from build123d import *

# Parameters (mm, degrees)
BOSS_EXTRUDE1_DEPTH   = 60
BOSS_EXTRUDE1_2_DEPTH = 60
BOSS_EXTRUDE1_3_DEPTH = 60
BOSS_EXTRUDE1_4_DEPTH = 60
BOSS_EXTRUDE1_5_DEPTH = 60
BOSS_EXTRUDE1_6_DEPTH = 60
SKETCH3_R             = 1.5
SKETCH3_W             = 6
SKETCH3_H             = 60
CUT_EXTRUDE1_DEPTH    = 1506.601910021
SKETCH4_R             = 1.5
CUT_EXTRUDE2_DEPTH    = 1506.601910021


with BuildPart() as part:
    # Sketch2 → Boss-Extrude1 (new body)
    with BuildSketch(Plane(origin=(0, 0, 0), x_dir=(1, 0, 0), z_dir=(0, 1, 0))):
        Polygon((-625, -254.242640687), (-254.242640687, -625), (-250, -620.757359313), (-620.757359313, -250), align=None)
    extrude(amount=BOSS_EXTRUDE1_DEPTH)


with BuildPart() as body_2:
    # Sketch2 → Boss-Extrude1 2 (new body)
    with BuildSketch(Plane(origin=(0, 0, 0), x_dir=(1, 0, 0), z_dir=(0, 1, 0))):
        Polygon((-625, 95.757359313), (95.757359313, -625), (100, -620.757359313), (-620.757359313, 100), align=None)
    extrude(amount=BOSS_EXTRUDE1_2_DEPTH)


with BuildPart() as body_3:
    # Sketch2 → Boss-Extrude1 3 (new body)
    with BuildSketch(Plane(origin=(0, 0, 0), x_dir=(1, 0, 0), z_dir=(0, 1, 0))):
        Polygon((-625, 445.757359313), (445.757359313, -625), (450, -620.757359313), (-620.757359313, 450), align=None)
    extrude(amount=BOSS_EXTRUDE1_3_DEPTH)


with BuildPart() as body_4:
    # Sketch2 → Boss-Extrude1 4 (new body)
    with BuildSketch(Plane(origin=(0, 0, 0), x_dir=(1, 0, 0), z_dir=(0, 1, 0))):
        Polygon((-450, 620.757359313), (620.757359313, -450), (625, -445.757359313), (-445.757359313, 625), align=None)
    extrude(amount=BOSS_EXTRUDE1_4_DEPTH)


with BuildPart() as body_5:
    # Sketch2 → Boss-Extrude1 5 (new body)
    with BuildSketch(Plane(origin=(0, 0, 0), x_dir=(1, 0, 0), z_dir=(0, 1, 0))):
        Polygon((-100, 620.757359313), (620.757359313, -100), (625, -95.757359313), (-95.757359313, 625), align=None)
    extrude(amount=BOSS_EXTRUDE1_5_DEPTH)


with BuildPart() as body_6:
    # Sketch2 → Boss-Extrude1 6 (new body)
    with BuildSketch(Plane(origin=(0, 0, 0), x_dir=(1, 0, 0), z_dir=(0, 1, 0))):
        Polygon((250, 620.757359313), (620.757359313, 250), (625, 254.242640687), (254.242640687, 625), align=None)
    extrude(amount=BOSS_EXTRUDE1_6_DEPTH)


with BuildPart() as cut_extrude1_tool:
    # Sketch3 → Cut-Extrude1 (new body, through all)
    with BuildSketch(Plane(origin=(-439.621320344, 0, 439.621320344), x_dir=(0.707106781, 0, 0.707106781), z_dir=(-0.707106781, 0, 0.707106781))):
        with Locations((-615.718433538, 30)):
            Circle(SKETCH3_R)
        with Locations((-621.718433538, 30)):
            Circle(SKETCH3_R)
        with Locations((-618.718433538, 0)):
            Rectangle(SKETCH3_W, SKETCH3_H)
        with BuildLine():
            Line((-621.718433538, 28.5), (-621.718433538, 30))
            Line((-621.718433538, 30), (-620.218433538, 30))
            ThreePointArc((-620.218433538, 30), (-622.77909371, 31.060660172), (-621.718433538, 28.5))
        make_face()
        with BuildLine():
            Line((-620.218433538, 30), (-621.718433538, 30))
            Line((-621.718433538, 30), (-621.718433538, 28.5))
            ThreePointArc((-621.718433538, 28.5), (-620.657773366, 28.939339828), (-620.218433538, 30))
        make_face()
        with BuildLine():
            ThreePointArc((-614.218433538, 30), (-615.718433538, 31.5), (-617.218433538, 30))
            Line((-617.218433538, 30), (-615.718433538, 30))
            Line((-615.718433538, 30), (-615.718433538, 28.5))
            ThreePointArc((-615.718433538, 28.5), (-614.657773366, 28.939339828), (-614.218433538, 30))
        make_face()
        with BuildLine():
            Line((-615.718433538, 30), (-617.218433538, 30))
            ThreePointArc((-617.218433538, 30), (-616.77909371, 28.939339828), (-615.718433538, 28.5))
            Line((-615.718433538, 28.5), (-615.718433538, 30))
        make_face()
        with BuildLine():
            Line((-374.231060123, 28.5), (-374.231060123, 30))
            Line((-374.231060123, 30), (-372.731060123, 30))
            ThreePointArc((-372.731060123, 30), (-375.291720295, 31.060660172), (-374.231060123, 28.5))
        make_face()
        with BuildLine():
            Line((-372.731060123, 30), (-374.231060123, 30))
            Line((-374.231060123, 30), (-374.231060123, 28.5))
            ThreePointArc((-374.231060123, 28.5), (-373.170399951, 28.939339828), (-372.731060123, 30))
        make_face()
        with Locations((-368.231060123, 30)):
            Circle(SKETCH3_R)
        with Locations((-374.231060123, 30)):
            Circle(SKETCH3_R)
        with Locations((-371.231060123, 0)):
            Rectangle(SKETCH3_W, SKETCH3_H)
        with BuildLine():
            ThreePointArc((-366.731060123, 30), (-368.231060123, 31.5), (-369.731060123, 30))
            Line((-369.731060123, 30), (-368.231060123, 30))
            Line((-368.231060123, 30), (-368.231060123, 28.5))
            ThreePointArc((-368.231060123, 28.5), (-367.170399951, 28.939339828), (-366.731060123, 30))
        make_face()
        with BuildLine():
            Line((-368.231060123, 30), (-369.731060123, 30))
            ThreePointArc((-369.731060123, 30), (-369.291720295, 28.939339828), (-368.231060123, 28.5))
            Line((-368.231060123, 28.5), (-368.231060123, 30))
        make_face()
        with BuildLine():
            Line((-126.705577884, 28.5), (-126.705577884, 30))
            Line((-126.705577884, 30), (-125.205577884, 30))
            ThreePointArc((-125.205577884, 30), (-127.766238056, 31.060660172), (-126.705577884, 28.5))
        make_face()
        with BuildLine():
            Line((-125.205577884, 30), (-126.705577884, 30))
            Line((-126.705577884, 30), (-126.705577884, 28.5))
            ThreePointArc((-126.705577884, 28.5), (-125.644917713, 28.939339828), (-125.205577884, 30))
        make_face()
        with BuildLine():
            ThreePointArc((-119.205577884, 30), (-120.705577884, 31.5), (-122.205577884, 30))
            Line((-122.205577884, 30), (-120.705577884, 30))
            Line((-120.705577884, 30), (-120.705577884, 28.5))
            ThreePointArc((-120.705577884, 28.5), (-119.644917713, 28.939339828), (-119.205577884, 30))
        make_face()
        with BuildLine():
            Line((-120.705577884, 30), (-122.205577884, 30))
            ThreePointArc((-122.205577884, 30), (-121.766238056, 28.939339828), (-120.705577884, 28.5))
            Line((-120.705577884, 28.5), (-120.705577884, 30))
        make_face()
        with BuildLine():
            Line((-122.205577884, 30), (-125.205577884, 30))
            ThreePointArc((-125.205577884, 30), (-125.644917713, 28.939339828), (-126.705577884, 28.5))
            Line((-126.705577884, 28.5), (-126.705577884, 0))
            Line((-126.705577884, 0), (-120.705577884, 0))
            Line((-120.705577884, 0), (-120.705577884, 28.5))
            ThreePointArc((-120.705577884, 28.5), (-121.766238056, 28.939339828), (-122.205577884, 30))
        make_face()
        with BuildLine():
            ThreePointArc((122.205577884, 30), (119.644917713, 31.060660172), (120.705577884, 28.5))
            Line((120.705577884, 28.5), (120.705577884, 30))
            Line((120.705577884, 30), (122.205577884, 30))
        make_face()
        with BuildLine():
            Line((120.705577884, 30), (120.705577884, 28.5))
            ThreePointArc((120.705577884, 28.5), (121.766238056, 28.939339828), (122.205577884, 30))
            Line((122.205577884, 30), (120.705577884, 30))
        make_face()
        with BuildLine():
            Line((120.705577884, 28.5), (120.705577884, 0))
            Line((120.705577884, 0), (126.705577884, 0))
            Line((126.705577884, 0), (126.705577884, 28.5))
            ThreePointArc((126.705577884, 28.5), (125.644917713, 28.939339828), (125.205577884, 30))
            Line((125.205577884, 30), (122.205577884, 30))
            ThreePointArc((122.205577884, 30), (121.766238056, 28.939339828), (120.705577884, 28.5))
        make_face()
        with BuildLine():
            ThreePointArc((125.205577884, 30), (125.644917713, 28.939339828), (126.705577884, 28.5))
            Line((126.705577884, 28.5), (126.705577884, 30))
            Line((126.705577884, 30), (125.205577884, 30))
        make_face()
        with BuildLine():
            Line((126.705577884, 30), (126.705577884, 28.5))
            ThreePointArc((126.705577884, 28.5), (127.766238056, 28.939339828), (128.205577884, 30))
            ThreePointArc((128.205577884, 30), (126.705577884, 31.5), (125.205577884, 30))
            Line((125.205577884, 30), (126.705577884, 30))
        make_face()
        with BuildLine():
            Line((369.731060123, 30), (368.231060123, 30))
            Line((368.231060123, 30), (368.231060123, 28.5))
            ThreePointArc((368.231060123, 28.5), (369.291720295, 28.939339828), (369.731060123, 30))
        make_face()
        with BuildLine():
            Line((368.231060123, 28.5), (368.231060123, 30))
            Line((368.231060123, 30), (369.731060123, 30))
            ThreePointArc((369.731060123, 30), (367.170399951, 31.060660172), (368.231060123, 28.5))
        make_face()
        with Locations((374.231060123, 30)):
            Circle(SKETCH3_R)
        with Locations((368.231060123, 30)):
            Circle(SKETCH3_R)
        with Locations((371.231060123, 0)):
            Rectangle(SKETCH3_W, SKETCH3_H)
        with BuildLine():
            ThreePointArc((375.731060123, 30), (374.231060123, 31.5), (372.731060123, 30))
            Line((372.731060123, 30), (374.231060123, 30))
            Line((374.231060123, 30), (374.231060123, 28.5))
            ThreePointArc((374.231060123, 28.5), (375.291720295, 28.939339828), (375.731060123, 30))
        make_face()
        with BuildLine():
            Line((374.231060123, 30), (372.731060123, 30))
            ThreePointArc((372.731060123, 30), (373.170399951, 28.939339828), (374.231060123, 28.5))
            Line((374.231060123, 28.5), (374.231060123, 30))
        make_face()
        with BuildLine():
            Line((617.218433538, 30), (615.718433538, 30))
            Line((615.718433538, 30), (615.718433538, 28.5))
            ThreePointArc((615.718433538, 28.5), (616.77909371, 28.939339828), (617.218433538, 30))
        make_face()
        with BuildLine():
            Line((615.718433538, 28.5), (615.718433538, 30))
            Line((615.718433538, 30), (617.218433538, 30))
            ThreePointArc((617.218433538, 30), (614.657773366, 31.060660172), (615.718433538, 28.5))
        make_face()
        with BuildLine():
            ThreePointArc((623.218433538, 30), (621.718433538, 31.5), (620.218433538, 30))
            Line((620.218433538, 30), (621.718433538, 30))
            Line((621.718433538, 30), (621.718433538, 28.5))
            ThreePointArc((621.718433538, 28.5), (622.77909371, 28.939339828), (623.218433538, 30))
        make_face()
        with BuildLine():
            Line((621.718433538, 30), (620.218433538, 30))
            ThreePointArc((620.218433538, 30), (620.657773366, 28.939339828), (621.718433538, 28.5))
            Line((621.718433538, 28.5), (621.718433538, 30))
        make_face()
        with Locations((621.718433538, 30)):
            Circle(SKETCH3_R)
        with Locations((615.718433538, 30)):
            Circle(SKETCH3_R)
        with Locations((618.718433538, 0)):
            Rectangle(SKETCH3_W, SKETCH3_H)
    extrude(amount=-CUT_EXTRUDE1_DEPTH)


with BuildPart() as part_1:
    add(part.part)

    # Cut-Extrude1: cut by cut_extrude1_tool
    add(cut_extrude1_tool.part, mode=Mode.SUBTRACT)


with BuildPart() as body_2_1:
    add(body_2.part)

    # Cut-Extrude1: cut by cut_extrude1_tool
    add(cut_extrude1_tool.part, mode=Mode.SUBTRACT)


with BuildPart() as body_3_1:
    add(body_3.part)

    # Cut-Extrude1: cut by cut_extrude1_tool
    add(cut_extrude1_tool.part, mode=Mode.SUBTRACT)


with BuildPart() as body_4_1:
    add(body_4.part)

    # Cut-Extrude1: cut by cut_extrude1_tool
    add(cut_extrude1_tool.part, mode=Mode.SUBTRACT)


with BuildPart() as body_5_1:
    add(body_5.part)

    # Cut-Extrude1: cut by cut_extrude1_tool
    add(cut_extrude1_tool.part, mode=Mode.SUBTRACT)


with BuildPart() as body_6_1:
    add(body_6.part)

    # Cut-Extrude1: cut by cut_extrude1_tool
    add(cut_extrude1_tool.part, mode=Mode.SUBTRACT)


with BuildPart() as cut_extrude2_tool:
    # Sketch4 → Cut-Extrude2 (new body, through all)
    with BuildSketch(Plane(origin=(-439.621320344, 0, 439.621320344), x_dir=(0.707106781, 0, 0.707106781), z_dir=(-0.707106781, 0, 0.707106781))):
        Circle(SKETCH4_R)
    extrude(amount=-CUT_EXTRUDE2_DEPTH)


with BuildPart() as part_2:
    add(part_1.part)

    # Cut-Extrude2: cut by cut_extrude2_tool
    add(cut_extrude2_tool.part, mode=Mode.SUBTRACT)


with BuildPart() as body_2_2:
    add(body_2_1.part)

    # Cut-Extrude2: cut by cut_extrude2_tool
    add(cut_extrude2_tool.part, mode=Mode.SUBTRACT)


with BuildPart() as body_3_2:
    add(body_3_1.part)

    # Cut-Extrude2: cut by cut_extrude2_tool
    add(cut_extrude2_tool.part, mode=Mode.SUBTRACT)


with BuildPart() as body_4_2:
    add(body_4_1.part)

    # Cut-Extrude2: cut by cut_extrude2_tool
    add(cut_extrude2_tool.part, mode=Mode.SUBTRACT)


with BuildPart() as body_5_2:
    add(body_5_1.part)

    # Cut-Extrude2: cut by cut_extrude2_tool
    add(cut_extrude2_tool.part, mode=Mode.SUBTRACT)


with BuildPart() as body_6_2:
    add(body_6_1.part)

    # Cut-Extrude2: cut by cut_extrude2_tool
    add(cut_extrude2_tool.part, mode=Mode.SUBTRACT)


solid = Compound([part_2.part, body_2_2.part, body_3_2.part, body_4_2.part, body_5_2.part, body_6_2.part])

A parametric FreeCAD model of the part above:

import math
import FreeCAD as App
import Part
import Sketcher
from FreeCAD import Vector
Q = App.Units.Quantity

doc = App.newDocument("Part")
params = doc.addObject("Spreadsheet::Sheet", "Params")
for row, (alias, value) in enumerate([
    ("sketch1_length", "6 mm"),
    ("pad1_length", "60 mm"),
    ("sketch2_length", "6 mm"),
    ("pad2_length", "60 mm"),
    ("sketch3_length", "6 mm"),
    ("pad3_length", "60 mm"),
    ("sketch4_length", "6 mm"),
    ("pad4_length", "60 mm"),
    ("sketch5_length", "6 mm"),
    ("pad5_length", "60 mm"),
    ("sketch6_length", "6 mm"),
    ("pad6_length", "60 mm"),
    ("sketch7_radius", "1.5 mm"),
    ("sketch7_width", "6 mm"),
    ("sketch7_height", "58.5 mm"),
    ("sketch7_height2", "28.5 mm"),
    ("pad7_length", "1506.60191 mm"),
    ("sketch8_diameter", "3 mm"),
    ("pad8_length", "1506.60191 mm"),
], start=1):
    params.set(f"A{row}", alias)
    params.set(f"B{row}", "=" + value)
    params.setAlias(f"B{row}", alias)

body = doc.addObject("PartDesign::Body", "Body")

sketch1 = body.newObject("Sketcher::SketchObject", "Sketch")
sketch1.AttachmentSupport = (doc.getObject("XZ_Plane"), [""])
sketch1.MapMode = "FlatFace"
sketch1.addGeometry(Part.LineSegment(Vector(-625, 254, 0), Vector(-254, 625, 0)), False)
sketch1.addGeometry(Part.LineSegment(Vector(-254, 625, 0), Vector(-250, 621, 0)), False)
sketch1.addGeometry(Part.LineSegment(Vector(-250, 621, 0), Vector(-621, 250, 0)), False)
sketch1.addGeometry(Part.LineSegment(Vector(-621, 250, 0), Vector(-625, 254, 0)), False)
sketch1.addConstraint(Sketcher.Constraint("Coincident", 0, 2, 1, 1))
sketch1.addConstraint(Sketcher.Constraint("Coincident", 1, 2, 2, 1))
sketch1.addConstraint(Sketcher.Constraint("Coincident", 2, 2, 3, 1))
sketch1.addConstraint(Sketcher.Constraint("Coincident", 3, 2, 0, 1))
sketch1.addConstraint(Sketcher.Constraint("Perpendicular", 0, 1))
sketch1.addConstraint(Sketcher.Constraint("Perpendicular", 1, 2))
sketch1.addConstraint(Sketcher.Constraint("Perpendicular", 2, 3))
sketch1.addConstraint(Sketcher.Constraint("Angle", 0, Q("45 deg")))
sketch1.addConstraint(Sketcher.Constraint("Distance", 1, Q("6 mm")))
sketch1.addConstraint(Sketcher.Constraint("DistanceY", -1, 1, 0, 2, Q("625 mm")))
sketch1.addConstraint(Sketcher.Constraint("DistanceX", 1, 2, -1, 1, Q("250 mm")))
sketch1.addConstraint(Sketcher.Constraint("DistanceY", -1, 1, 2, 2, Q("250 mm")))
sketch1.setExpression("Constraints[8]", "Params.sketch1_length")
pad1 = body.newObject("PartDesign::Pad", "Pad")
pad1.Profile = sketch1
pad1.setExpression("Length", "Params.pad1_length")
pad1.Reversed = True
body2 = doc.addObject("PartDesign::Body", "Body001")

sketch2 = body2.newObject("Sketcher::SketchObject", "Sketch001")
sketch2.AttachmentSupport = (doc.getObject("XZ_Plane001"), [""])
sketch2.MapMode = "FlatFace"
sketch2.addGeometry(Part.LineSegment(Vector(-625, -96, 0), Vector(96, 625, 0)), False)
sketch2.addGeometry(Part.LineSegment(Vector(96, 625, 0), Vector(100, 621, 0)), False)
sketch2.addGeometry(Part.LineSegment(Vector(100, 621, 0), Vector(-621, -100, 0)), False)
sketch2.addGeometry(Part.LineSegment(Vector(-621, -100, 0), Vector(-625, -96, 0)), False)
sketch2.addConstraint(Sketcher.Constraint("Coincident", 0, 2, 1, 1))
sketch2.addConstraint(Sketcher.Constraint("Coincident", 1, 2, 2, 1))
sketch2.addConstraint(Sketcher.Constraint("Coincident", 2, 2, 3, 1))
sketch2.addConstraint(Sketcher.Constraint("Coincident", 3, 2, 0, 1))
sketch2.addConstraint(Sketcher.Constraint("Perpendicular", 0, 1))
sketch2.addConstraint(Sketcher.Constraint("Perpendicular", 1, 2))
sketch2.addConstraint(Sketcher.Constraint("Perpendicular", 2, 3))
sketch2.addConstraint(Sketcher.Constraint("Angle", 0, Q("45 deg")))
sketch2.addConstraint(Sketcher.Constraint("Distance", 1, Q("6 mm")))
sketch2.addConstraint(Sketcher.Constraint("DistanceY", -1, 1, 0, 2, Q("625 mm")))
sketch2.addConstraint(Sketcher.Constraint("DistanceX", -1, 1, 1, 2, Q("100 mm")))
sketch2.addConstraint(Sketcher.Constraint("DistanceY", 2, 2, -1, 1, Q("100 mm")))
sketch2.setExpression("Constraints[8]", "Params.sketch2_length")
pad2 = body2.newObject("PartDesign::Pad", "Pad001")
pad2.Profile = sketch2
pad2.setExpression("Length", "Params.pad2_length")
pad2.Reversed = True
body3 = doc.addObject("PartDesign::Body", "Body002")

sketch3 = body3.newObject("Sketcher::SketchObject", "Sketch002")
sketch3.AttachmentSupport = (doc.getObject("XZ_Plane002"), [""])
sketch3.MapMode = "FlatFace"
sketch3.addGeometry(Part.LineSegment(Vector(-625, -446, 0), Vector(446, 625, 0)), False)
sketch3.addGeometry(Part.LineSegment(Vector(446, 625, 0), Vector(450, 621, 0)), False)
sketch3.addGeometry(Part.LineSegment(Vector(450, 621, 0), Vector(-621, -450, 0)), False)
sketch3.addGeometry(Part.LineSegment(Vector(-621, -450, 0), Vector(-625, -446, 0)), False)
sketch3.addConstraint(Sketcher.Constraint("Coincident", 0, 2, 1, 1))
sketch3.addConstraint(Sketcher.Constraint("Coincident", 1, 2, 2, 1))
sketch3.addConstraint(Sketcher.Constraint("Coincident", 2, 2, 3, 1))
sketch3.addConstraint(Sketcher.Constraint("Coincident", 3, 2, 0, 1))
sketch3.addConstraint(Sketcher.Constraint("Perpendicular", 0, 1))
sketch3.addConstraint(Sketcher.Constraint("Perpendicular", 1, 2))
sketch3.addConstraint(Sketcher.Constraint("Perpendicular", 2, 3))
sketch3.addConstraint(Sketcher.Constraint("Angle", 0, Q("45 deg")))
sketch3.addConstraint(Sketcher.Constraint("Distance", 1, Q("6 mm")))
sketch3.addConstraint(Sketcher.Constraint("DistanceY", -1, 1, 0, 2, Q("625 mm")))
sketch3.addConstraint(Sketcher.Constraint("DistanceX", -1, 1, 1, 2, Q("450 mm")))
sketch3.addConstraint(Sketcher.Constraint("DistanceY", 2, 2, -1, 1, Q("450 mm")))
sketch3.setExpression("Constraints[8]", "Params.sketch3_length")
pad3 = body3.newObject("PartDesign::Pad", "Pad002")
pad3.Profile = sketch3
pad3.setExpression("Length", "Params.pad3_length")
pad3.Reversed = True
body4 = doc.addObject("PartDesign::Body", "Body003")

sketch4 = body4.newObject("Sketcher::SketchObject", "Sketch003")
sketch4.AttachmentSupport = (doc.getObject("XZ_Plane003"), [""])
sketch4.MapMode = "FlatFace"
sketch4.addGeometry(Part.LineSegment(Vector(-450, -621, 0), Vector(621, 450, 0)), False)
sketch4.addGeometry(Part.LineSegment(Vector(621, 450, 0), Vector(625, 446, 0)), False)
sketch4.addGeometry(Part.LineSegment(Vector(625, 446, 0), Vector(-446, -625, 0)), False)
sketch4.addGeometry(Part.LineSegment(Vector(-446, -625, 0), Vector(-450, -621, 0)), False)
sketch4.addConstraint(Sketcher.Constraint("Coincident", 0, 2, 1, 1))
sketch4.addConstraint(Sketcher.Constraint("Coincident", 1, 2, 2, 1))
sketch4.addConstraint(Sketcher.Constraint("Coincident", 2, 2, 3, 1))
sketch4.addConstraint(Sketcher.Constraint("Coincident", 3, 2, 0, 1))
sketch4.addConstraint(Sketcher.Constraint("Perpendicular", 0, 1))
sketch4.addConstraint(Sketcher.Constraint("Perpendicular", 1, 2))
sketch4.addConstraint(Sketcher.Constraint("Perpendicular", 2, 3))
sketch4.addConstraint(Sketcher.Constraint("Angle", 0, Q("45 deg")))
sketch4.addConstraint(Sketcher.Constraint("Distance", 1, Q("6 mm")))
sketch4.addConstraint(Sketcher.Constraint("DistanceY", -1, 1, 0, 2, Q("450 mm")))
sketch4.addConstraint(Sketcher.Constraint("DistanceX", -1, 1, 1, 2, Q("625 mm")))
sketch4.addConstraint(Sketcher.Constraint("DistanceY", 2, 2, -1, 1, Q("625 mm")))
sketch4.setExpression("Constraints[8]", "Params.sketch4_length")
pad4 = body4.newObject("PartDesign::Pad", "Pad003")
pad4.Profile = sketch4
pad4.setExpression("Length", "Params.pad4_length")
pad4.Reversed = True
body5 = doc.addObject("PartDesign::Body", "Body004")

sketch5 = body5.newObject("Sketcher::SketchObject", "Sketch004")
sketch5.AttachmentSupport = (doc.getObject("XZ_Plane004"), [""])
sketch5.MapMode = "FlatFace"
sketch5.addGeometry(Part.LineSegment(Vector(-100, -621, 0), Vector(621, 100, 0)), False)
sketch5.addGeometry(Part.LineSegment(Vector(621, 100, 0), Vector(625, 96, 0)), False)
sketch5.addGeometry(Part.LineSegment(Vector(625, 96, 0), Vector(-96, -625, 0)), False)
sketch5.addGeometry(Part.LineSegment(Vector(-96, -625, 0), Vector(-100, -621, 0)), False)
sketch5.addConstraint(Sketcher.Constraint("Coincident", 0, 2, 1, 1))
sketch5.addConstraint(Sketcher.Constraint("Coincident", 1, 2, 2, 1))
sketch5.addConstraint(Sketcher.Constraint("Coincident", 2, 2, 3, 1))
sketch5.addConstraint(Sketcher.Constraint("Coincident", 3, 2, 0, 1))
sketch5.addConstraint(Sketcher.Constraint("Perpendicular", 0, 1))
sketch5.addConstraint(Sketcher.Constraint("Perpendicular", 1, 2))
sketch5.addConstraint(Sketcher.Constraint("Perpendicular", 2, 3))
sketch5.addConstraint(Sketcher.Constraint("Angle", 0, Q("45 deg")))
sketch5.addConstraint(Sketcher.Constraint("Distance", 1, Q("6 mm")))
sketch5.addConstraint(Sketcher.Constraint("DistanceY", -1, 1, 0, 2, Q("100 mm")))
sketch5.addConstraint(Sketcher.Constraint("DistanceX", -1, 1, 1, 2, Q("625 mm")))
sketch5.addConstraint(Sketcher.Constraint("DistanceY", 2, 2, -1, 1, Q("625 mm")))
sketch5.setExpression("Constraints[8]", "Params.sketch5_length")
pad5 = body5.newObject("PartDesign::Pad", "Pad004")
pad5.Profile = sketch5
pad5.setExpression("Length", "Params.pad5_length")
pad5.Reversed = True
body6 = doc.addObject("PartDesign::Body", "Body005")

sketch6 = body6.newObject("Sketcher::SketchObject", "Sketch005")
sketch6.AttachmentSupport = (doc.getObject("XZ_Plane005"), [""])
sketch6.MapMode = "FlatFace"
sketch6.addGeometry(Part.LineSegment(Vector(250, -621, 0), Vector(621, -250, 0)), False)
sketch6.addGeometry(Part.LineSegment(Vector(621, -250, 0), Vector(625, -254, 0)), False)
sketch6.addGeometry(Part.LineSegment(Vector(625, -254, 0), Vector(254, -625, 0)), False)
sketch6.addGeometry(Part.LineSegment(Vector(254, -625, 0), Vector(250, -621, 0)), False)
sketch6.addConstraint(Sketcher.Constraint("Coincident", 0, 2, 1, 1))
sketch6.addConstraint(Sketcher.Constraint("Coincident", 1, 2, 2, 1))
sketch6.addConstraint(Sketcher.Constraint("Coincident", 2, 2, 3, 1))
sketch6.addConstraint(Sketcher.Constraint("Coincident", 3, 2, 0, 1))
sketch6.addConstraint(Sketcher.Constraint("Perpendicular", 0, 1))
sketch6.addConstraint(Sketcher.Constraint("Perpendicular", 1, 2))
sketch6.addConstraint(Sketcher.Constraint("Perpendicular", 2, 3))
sketch6.addConstraint(Sketcher.Constraint("Angle", 0, Q("45 deg")))
sketch6.addConstraint(Sketcher.Constraint("Distance", 1, Q("6 mm")))
sketch6.addConstraint(Sketcher.Constraint("DistanceY", 0, 2, -1, 1, Q("250 mm")))
sketch6.addConstraint(Sketcher.Constraint("DistanceX", -1, 1, 1, 2, Q("625 mm")))
sketch6.addConstraint(Sketcher.Constraint("DistanceY", 2, 2, -1, 1, Q("625 mm")))
sketch6.setExpression("Constraints[8]", "Params.sketch6_length")
pad6 = body6.newObject("PartDesign::Pad", "Pad005")
pad6.Profile = sketch6
pad6.setExpression("Length", "Params.pad6_length")
pad6.Reversed = True
body7 = doc.addObject("PartDesign::Body", "Body006")
body7.AllowCompound = True

sketch7 = body7.newObject("Sketcher::SketchObject", "Sketch006")
sketch7.Placement = App.Placement(Vector(-439.62132, 0, 439.62132), App.Rotation(Vector(0.707106781, 0, 0.707106781), Vector(0, 0.999999999, 0), Vector(-0.707106781, 0, 0.707106781), "ZXY"))
sketch7.addGeometry(Part.LineSegment(Vector(-621.7, 28.5, 0), Vector(-621.7, -30, 0)), False)
sketch7.addGeometry(Part.LineSegment(Vector(-621.7, -30, 0), Vector(-615.7, -30, 0)), False)
sketch7.addGeometry(Part.LineSegment(Vector(-615.7, -30, 0), Vector(-615.7, 28.5, 0)), False)
sketch7.addGeometry(Part.ArcOfCircle(Part.Circle(Vector(-615.7, 30, 0), Vector(0, 0, 1), 1.5), math.radians(-90), math.radians(180)), False)
sketch7.addGeometry(Part.LineSegment(Vector(-617.2, 30, 0), Vector(-620.2, 30, 0)), False)
sketch7.addGeometry(Part.ArcOfCircle(Part.Circle(Vector(-621.7, 30, 0), Vector(0, 0, 1), 1.5), math.radians(0), math.radians(270)), False)
sketch7.addGeometry(Part.LineSegment(Vector(-369.7, 30, 0), Vector(-372.7, 30, 0)), False)
sketch7.addGeometry(Part.ArcOfCircle(Part.Circle(Vector(-374.2, 30, 0), Vector(0, 0, 1), 1.5), math.radians(0), math.radians(270)), False)
sketch7.addGeometry(Part.LineSegment(Vector(-374.2, 28.5, 0), Vector(-374.2, -30, 0)), False)
sketch7.addGeometry(Part.LineSegment(Vector(-374.2, -30, 0), Vector(-368.2, -30, 0)), False)
sketch7.addGeometry(Part.LineSegment(Vector(-368.2, -30, 0), Vector(-368.2, 28.5, 0)), False)
sketch7.addGeometry(Part.ArcOfCircle(Part.Circle(Vector(-368.2, 30, 0), Vector(0, 0, 1), 1.5), math.radians(-90), math.radians(180)), False)
sketch7.addGeometry(Part.ArcOfCircle(Part.Circle(Vector(-126.7, 30, 0), Vector(0, 0, 1), 1.5), math.radians(0), math.radians(270)), False)
sketch7.addGeometry(Part.LineSegment(Vector(-126.7, 28.5, 0), Vector(-126.7, 0, 0)), False)
sketch7.addGeometry(Part.LineSegment(Vector(-126.7, 0, 0), Vector(-120.7, 0, 0)), False)
sketch7.addGeometry(Part.LineSegment(Vector(-120.7, 0, 0), Vector(-120.7, 28.5, 0)), False)
sketch7.addGeometry(Part.ArcOfCircle(Part.Circle(Vector(-120.7, 30, 0), Vector(0, 0, 1), 1.5), math.radians(-90), math.radians(0)), False)
sketch7.addGeometry(Part.ArcOfCircle(Part.Circle(Vector(-120.7, 30, 0), Vector(0, 0, 1), 1.5), math.radians(0), math.radians(180)), False)
sketch7.addGeometry(Part.LineSegment(Vector(-122.2, 30, 0), Vector(-125.2, 30, 0)), False)
sketch7.addGeometry(Part.LineSegment(Vector(126.7, 0, 0), Vector(126.7, 28.5, 0)), False)
sketch7.addGeometry(Part.ArcOfCircle(Part.Circle(Vector(126.7, 30, 0), Vector(0, 0, 1), 1.5), math.radians(-90), math.radians(0)), False)
sketch7.addGeometry(Part.ArcOfCircle(Part.Circle(Vector(126.7, 30, 0), Vector(0, 0, 1), 1.5), math.radians(0), math.radians(180)), False)
sketch7.addGeometry(Part.LineSegment(Vector(125.2, 30, 0), Vector(122.2, 30, 0)), False)
sketch7.addGeometry(Part.ArcOfCircle(Part.Circle(Vector(120.7, 30, 0), Vector(0, 0, 1), 1.5), math.radians(0), math.radians(270)), False)
sketch7.addGeometry(Part.LineSegment(Vector(120.7, 28.5, 0), Vector(120.7, 0, 0)), False)
sketch7.addGeometry(Part.LineSegment(Vector(120.7, 0, 0), Vector(126.7, 0, 0)), False)
sketch7.addGeometry(Part.ArcOfCircle(Part.Circle(Vector(368.2, 30, 0), Vector(0, 0, 1), 1.5), math.radians(0), math.radians(270)), False)
sketch7.addGeometry(Part.LineSegment(Vector(368.2, 28.5, 0), Vector(368.2, -30, 0)), False)
sketch7.addGeometry(Part.LineSegment(Vector(368.2, -30, 0), Vector(374.2, -30, 0)), False)
sketch7.addGeometry(Part.LineSegment(Vector(374.2, -30, 0), Vector(374.2, 28.5, 0)), False)
sketch7.addGeometry(Part.ArcOfCircle(Part.Circle(Vector(374.2, 30, 0), Vector(0, 0, 1), 1.5), math.radians(-90), math.radians(180)), False)
sketch7.addGeometry(Part.LineSegment(Vector(372.7, 30, 0), Vector(369.7, 30, 0)), False)
sketch7.addGeometry(Part.ArcOfCircle(Part.Circle(Vector(615.7, 30, 0), Vector(0, 0, 1), 1.5), math.radians(0), math.radians(270)), False)
sketch7.addGeometry(Part.LineSegment(Vector(615.7, 28.5, 0), Vector(615.7, -30, 0)), False)
sketch7.addGeometry(Part.LineSegment(Vector(615.7, -30, 0), Vector(621.7, -30, 0)), False)
sketch7.addGeometry(Part.LineSegment(Vector(621.7, -30, 0), Vector(621.7, 28.5, 0)), False)
sketch7.addGeometry(Part.ArcOfCircle(Part.Circle(Vector(621.7, 30, 0), Vector(0, 0, 1), 1.5), math.radians(-90), math.radians(0)), False)
sketch7.addGeometry(Part.ArcOfCircle(Part.Circle(Vector(621.7, 30, 0), Vector(0, 0, 1), 1.5), math.radians(0), math.radians(180)), False)
sketch7.addGeometry(Part.LineSegment(Vector(620.2, 30, 0), Vector(617.2, 30, 0)), False)
sketch7.addConstraint(Sketcher.Constraint("Coincident", 0, 2, 1, 1))
sketch7.addConstraint(Sketcher.Constraint("Coincident", 1, 2, 2, 1))
sketch7.addConstraint(Sketcher.Constraint("Coincident", 2, 2, 3, 1))
sketch7.addConstraint(Sketcher.Constraint("Coincident", 3, 2, 4, 1))
sketch7.addConstraint(Sketcher.Constraint("Coincident", 4, 2, 5, 1))
sketch7.addConstraint(Sketcher.Constraint("Coincident", 5, 2, 0, 1))
sketch7.addConstraint(Sketcher.Constraint("Coincident", 6, 2, 7, 1))
sketch7.addConstraint(Sketcher.Constraint("Coincident", 7, 2, 8, 1))
sketch7.addConstraint(Sketcher.Constraint("Coincident", 8, 2, 9, 1))
sketch7.addConstraint(Sketcher.Constraint("Coincident", 9, 2, 10, 1))
sketch7.addConstraint(Sketcher.Constraint("Coincident", 10, 2, 11, 1))
sketch7.addConstraint(Sketcher.Constraint("Coincident", 11, 2, 6, 1))
sketch7.addConstraint(Sketcher.Constraint("Coincident", 12, 2, 13, 1))
sketch7.addConstraint(Sketcher.Constraint("Coincident", 13, 2, 14, 1))
sketch7.addConstraint(Sketcher.Constraint("Coincident", 14, 2, 15, 1))
sketch7.addConstraint(Sketcher.Constraint("Coincident", 15, 2, 16, 1))
sketch7.addConstraint(Sketcher.Constraint("Tangent", 16, 2, 17, 1))
sketch7.addConstraint(Sketcher.Constraint("Coincident", 17, 2, 18, 1))
sketch7.addConstraint(Sketcher.Constraint("Coincident", 18, 2, 12, 1))
sketch7.addConstraint(Sketcher.Constraint("Coincident", 19, 2, 20, 1))
sketch7.addConstraint(Sketcher.Constraint("Tangent", 20, 2, 21, 1))
sketch7.addConstraint(Sketcher.Constraint("Coincident", 21, 2, 22, 1))
sketch7.addConstraint(Sketcher.Constraint("Coincident", 22, 2, 23, 1))
sketch7.addConstraint(Sketcher.Constraint("Coincident", 23, 2, 24, 1))
sketch7.addConstraint(Sketcher.Constraint("Coincident", 24, 2, 25, 1))
sketch7.addConstraint(Sketcher.Constraint("Coincident", 25, 2, 19, 1))
sketch7.addConstraint(Sketcher.Constraint("Coincident", 26, 2, 27, 1))
sketch7.addConstraint(Sketcher.Constraint("Coincident", 27, 2, 28, 1))
sketch7.addConstraint(Sketcher.Constraint("Coincident", 28, 2, 29, 1))
sketch7.addConstraint(Sketcher.Constraint("Coincident", 29, 2, 30, 1))
sketch7.addConstraint(Sketcher.Constraint("Coincident", 30, 2, 31, 1))
sketch7.addConstraint(Sketcher.Constraint("Coincident", 31, 2, 26, 1))
sketch7.addConstraint(Sketcher.Constraint("Coincident", 32, 2, 33, 1))
sketch7.addConstraint(Sketcher.Constraint("Coincident", 33, 2, 34, 1))
sketch7.addConstraint(Sketcher.Constraint("Coincident", 34, 2, 35, 1))
sketch7.addConstraint(Sketcher.Constraint("Coincident", 35, 2, 36, 1))
sketch7.addConstraint(Sketcher.Constraint("Tangent", 36, 2, 37, 1))
sketch7.addConstraint(Sketcher.Constraint("Coincident", 37, 2, 38, 1))
sketch7.addConstraint(Sketcher.Constraint("Coincident", 38, 2, 32, 1))
sketch7.addConstraint(Sketcher.Constraint("Vertical", 0))
sketch7.addConstraint(Sketcher.Constraint("Horizontal", 1))
sketch7.addConstraint(Sketcher.Constraint("Vertical", 2))
sketch7.addConstraint(Sketcher.Constraint("Horizontal", 4))
sketch7.addConstraint(Sketcher.Constraint("Horizontal", 6))
sketch7.addConstraint(Sketcher.Constraint("Vertical", 8))
sketch7.addConstraint(Sketcher.Constraint("Horizontal", 9))
sketch7.addConstraint(Sketcher.Constraint("Vertical", 10))
sketch7.addConstraint(Sketcher.Constraint("Vertical", 13))
sketch7.addConstraint(Sketcher.Constraint("Horizontal", 14))
sketch7.addConstraint(Sketcher.Constraint("Vertical", 15))
sketch7.addConstraint(Sketcher.Constraint("Horizontal", 18))
sketch7.addConstraint(Sketcher.Constraint("Vertical", 19))
sketch7.addConstraint(Sketcher.Constraint("Horizontal", 22))
sketch7.addConstraint(Sketcher.Constraint("Vertical", 24))
sketch7.addConstraint(Sketcher.Constraint("Horizontal", 25))
sketch7.addConstraint(Sketcher.Constraint("Vertical", 27))
sketch7.addConstraint(Sketcher.Constraint("Horizontal", 28))
sketch7.addConstraint(Sketcher.Constraint("Vertical", 29))
sketch7.addConstraint(Sketcher.Constraint("Horizontal", 31))
sketch7.addConstraint(Sketcher.Constraint("Vertical", 33))
sketch7.addConstraint(Sketcher.Constraint("Horizontal", 34))
sketch7.addConstraint(Sketcher.Constraint("Vertical", 35))
sketch7.addConstraint(Sketcher.Constraint("Horizontal", 38))
sketch7.addConstraint(Sketcher.Constraint("Equal", 3, 5))
sketch7.addConstraint(Sketcher.Constraint("Equal", 5, 7))
sketch7.addConstraint(Sketcher.Constraint("Equal", 7, 11))
sketch7.addConstraint(Sketcher.Constraint("Equal", 11, 12))
sketch7.addConstraint(Sketcher.Constraint("Equal", 12, 16))
sketch7.addConstraint(Sketcher.Constraint("Equal", 16, 17))
sketch7.addConstraint(Sketcher.Constraint("Equal", 17, 20))
sketch7.addConstraint(Sketcher.Constraint("Equal", 20, 21))
sketch7.addConstraint(Sketcher.Constraint("Equal", 21, 23))
sketch7.addConstraint(Sketcher.Constraint("Equal", 23, 26))
sketch7.addConstraint(Sketcher.Constraint("Equal", 26, 30))
sketch7.addConstraint(Sketcher.Constraint("Equal", 30, 32))
sketch7.addConstraint(Sketcher.Constraint("Equal", 32, 36))
sketch7.addConstraint(Sketcher.Constraint("Equal", 36, 37))
sketch7.addConstraint(Sketcher.Constraint("Symmetric", 14, 2, 24, 2, -1, 1))
sketch7.addConstraint(Sketcher.Constraint("Symmetric", 12, 3, 20, 3, -2))
sketch7.addConstraint(Sketcher.Constraint("Symmetric", 16, 3, 23, 3, -2))
sketch7.addConstraint(Sketcher.Constraint("Symmetric", 11, 3, 26, 3, -2))
sketch7.addConstraint(Sketcher.Constraint("Symmetric", 7, 3, 30, 3, -2))
sketch7.addConstraint(Sketcher.Constraint("Symmetric", 3, 3, 32, 3, -2))
sketch7.addConstraint(Sketcher.Constraint("Symmetric", 5, 3, 36, 3, -2))
sketch7.addConstraint(Sketcher.Constraint("Symmetric", 13, 2, 25, 2, -2))
sketch7.addConstraint(Sketcher.Constraint("Symmetric", 9, 2, 27, 2, -2))
sketch7.addConstraint(Sketcher.Constraint("Symmetric", 1, 2, 33, 2, -2))
sketch7.addConstraint(Sketcher.Constraint("Horizontal", 3, 3, 5, 3))
sketch7.addConstraint(Sketcher.Constraint("Horizontal", 5, 3, 7, 3))
sketch7.addConstraint(Sketcher.Constraint("Horizontal", 7, 3, 11, 3))
sketch7.addConstraint(Sketcher.Constraint("Horizontal", 11, 3, 12, 3))
sketch7.addConstraint(Sketcher.Constraint("Horizontal", 12, 3, 16, 3))
sketch7.addConstraint(Sketcher.Constraint("Horizontal", 37, 3, 3, 2))
sketch7.addConstraint(Sketcher.Constraint("Horizontal", 4, 2, 6, 2))
sketch7.addConstraint(Sketcher.Constraint("Horizontal", 1, 2, 8, 2))
sketch7.addConstraint(Sketcher.Constraint("Horizontal", 11, 2, 16, 2))
sketch7.addConstraint(Sketcher.Constraint("Horizontal", 16, 2, 17, 2))
sketch7.addConstraint(Sketcher.Constraint("Horizontal", 18, 2, 20, 2))
sketch7.addConstraint(Sketcher.Constraint("Horizontal", 20, 2, 21, 2))
sketch7.addConstraint(Sketcher.Constraint("Horizontal", 22, 2, 30, 2))
sketch7.addConstraint(Sketcher.Constraint("Horizontal", 31, 2, 36, 2))
sketch7.addConstraint(Sketcher.Constraint("Horizontal", 36, 2, 37, 2))
sketch7.addConstraint(Sketcher.Constraint("Vertical", 5, 3, 0, 2))
sketch7.addConstraint(Sketcher.Constraint("Vertical", 3, 3, 1, 2))
sketch7.addConstraint(Sketcher.Constraint("Vertical", 11, 3, 9, 2))
sketch7.addConstraint(Sketcher.Constraint("Vertical", 17, 3, 14, 2))
sketch7.addConstraint(Sketcher.Constraint("Vertical", 21, 3, 19, 2))
sketch7.addConstraint(Sketcher.Constraint("Vertical", 30, 3, 28, 2))
sketch7.addConstraint(Sketcher.Constraint("Vertical", 37, 3, 34, 2))
sketch7.addConstraint(Sketcher.Constraint("Equal", 4, 6))
sketch7.addConstraint(Sketcher.Constraint("Equal", 1, 9))
sketch7.addConstraint(Sketcher.Constraint("Equal", 9, 14))
sketch7.addConstraint(Sketcher.Constraint("Radius", 3, Q("1.5 mm")))
sketch7.addConstraint(Sketcher.Constraint("DistanceX", 1, 1, 1, 2, Q("6 mm")))
sketch7.addConstraint(Sketcher.Constraint("DistanceY", 0, 2, 0, 1, Q("58.5 mm")))
sketch7.addConstraint(Sketcher.Constraint("DistanceY", 13, 2, 13, 1, Q("28.5 mm")))
sketch7.addConstraint(Sketcher.Constraint("DistanceX", 7, 3, -1, 1, Q("374.23106 mm")))
sketch7.addConstraint(Sketcher.Constraint("DistanceX", 3, 3, -1, 1, Q("615.718433 mm")))
sketch7.addConstraint(Sketcher.Constraint("DistanceX", 12, 3, -1, 1, Q("126.705578 mm")))
sketch7.setExpression("Constraints[112]", "Params.sketch7_radius")
sketch7.setExpression("Constraints[113]", "Params.sketch7_width")
sketch7.setExpression("Constraints[114]", "Params.sketch7_height")
sketch7.setExpression("Constraints[115]", "Params.sketch7_height2")
pad7 = body7.newObject("PartDesign::Pad", "Pad006")
pad7.Profile = sketch7
pad7.setExpression("Length", "Params.pad7_length")
pad7.Reversed = True
doc.recompute()

body8 = doc.addObject("PartDesign::Body", "Body007")
body8.BaseFeature = body7
boolean = body.newObject("PartDesign::Boolean", "Boolean")
boolean.Type = "Cut"
boolean.addObjects([body8])
doc.recompute()

body9 = doc.addObject("PartDesign::Body", "Body008")
body9.BaseFeature = body7
boolean2 = body2.newObject("PartDesign::Boolean", "Boolean001")
boolean2.Type = "Cut"
boolean2.addObjects([body9])
doc.recompute()

body10 = doc.addObject("PartDesign::Body", "Body009")
body10.BaseFeature = body7
boolean3 = body3.newObject("PartDesign::Boolean", "Boolean002")
boolean3.Type = "Cut"
boolean3.addObjects([body10])
doc.recompute()

body11 = doc.addObject("PartDesign::Body", "Body010")
body11.BaseFeature = body7
boolean4 = body4.newObject("PartDesign::Boolean", "Boolean003")
boolean4.Type = "Cut"
boolean4.addObjects([body11])
doc.recompute()

body12 = doc.addObject("PartDesign::Body", "Body011")
body12.BaseFeature = body7
boolean5 = body5.newObject("PartDesign::Boolean", "Boolean004")
boolean5.Type = "Cut"
boolean5.addObjects([body12])
doc.recompute()

boolean6 = body6.newObject("PartDesign::Boolean", "Boolean005")
boolean6.Type = "Cut"
boolean6.addObjects([body7])
body13 = doc.addObject("PartDesign::Body", "Body012")

sketch8 = body13.newObject("Sketcher::SketchObject", "Sketch007")
sketch8.Placement = App.Placement(Vector(-439.62132, 0, 439.62132), App.Rotation(Vector(0.707106781, 0, 0.707106781), Vector(0, 0.999999999, 0), Vector(-0.707106781, 0, 0.707106781), "ZXY"))
sketch8.addGeometry(Part.Circle(Vector(0, 0, 0), Vector(0, 0, 1), 1.5), False)
sketch8.addConstraint(Sketcher.Constraint("Coincident", 0, 3, -1, 1))
sketch8.addConstraint(Sketcher.Constraint("Diameter", 0, Q("3 mm")))
sketch8.setExpression("Constraints[1]", "Params.sketch8_diameter")
pad8 = body13.newObject("PartDesign::Pad", "Pad007")
pad8.Profile = sketch8
pad8.setExpression("Length", "Params.pad8_length")
pad8.Reversed = True
doc.recompute()

body14 = doc.addObject("PartDesign::Body", "Body013")
body14.BaseFeature = body13
boolean7 = body.newObject("PartDesign::Boolean", "Boolean006")
boolean7.Type = "Cut"
boolean7.addObjects([body14])
doc.recompute()

body15 = doc.addObject("PartDesign::Body", "Body014")
body15.BaseFeature = body13
boolean8 = body2.newObject("PartDesign::Boolean", "Boolean007")
boolean8.Type = "Cut"
boolean8.addObjects([body15])
doc.recompute()

body16 = doc.addObject("PartDesign::Body", "Body015")
body16.BaseFeature = body13
boolean9 = body3.newObject("PartDesign::Boolean", "Boolean008")
boolean9.Type = "Cut"
boolean9.addObjects([body16])
doc.recompute()

body17 = doc.addObject("PartDesign::Body", "Body016")
body17.BaseFeature = body13
boolean10 = body4.newObject("PartDesign::Boolean", "Boolean009")
boolean10.Type = "Cut"
boolean10.addObjects([body17])
doc.recompute()

body18 = doc.addObject("PartDesign::Body", "Body017")
body18.BaseFeature = body13
boolean11 = body5.newObject("PartDesign::Boolean", "Boolean010")
boolean11.Type = "Cut"
boolean11.addObjects([body18])
doc.recompute()

boolean12 = body6.newObject("PartDesign::Boolean", "Boolean011")
boolean12.Type = "Cut"
boolean12.addObjects([body13])

doc.recompute()
